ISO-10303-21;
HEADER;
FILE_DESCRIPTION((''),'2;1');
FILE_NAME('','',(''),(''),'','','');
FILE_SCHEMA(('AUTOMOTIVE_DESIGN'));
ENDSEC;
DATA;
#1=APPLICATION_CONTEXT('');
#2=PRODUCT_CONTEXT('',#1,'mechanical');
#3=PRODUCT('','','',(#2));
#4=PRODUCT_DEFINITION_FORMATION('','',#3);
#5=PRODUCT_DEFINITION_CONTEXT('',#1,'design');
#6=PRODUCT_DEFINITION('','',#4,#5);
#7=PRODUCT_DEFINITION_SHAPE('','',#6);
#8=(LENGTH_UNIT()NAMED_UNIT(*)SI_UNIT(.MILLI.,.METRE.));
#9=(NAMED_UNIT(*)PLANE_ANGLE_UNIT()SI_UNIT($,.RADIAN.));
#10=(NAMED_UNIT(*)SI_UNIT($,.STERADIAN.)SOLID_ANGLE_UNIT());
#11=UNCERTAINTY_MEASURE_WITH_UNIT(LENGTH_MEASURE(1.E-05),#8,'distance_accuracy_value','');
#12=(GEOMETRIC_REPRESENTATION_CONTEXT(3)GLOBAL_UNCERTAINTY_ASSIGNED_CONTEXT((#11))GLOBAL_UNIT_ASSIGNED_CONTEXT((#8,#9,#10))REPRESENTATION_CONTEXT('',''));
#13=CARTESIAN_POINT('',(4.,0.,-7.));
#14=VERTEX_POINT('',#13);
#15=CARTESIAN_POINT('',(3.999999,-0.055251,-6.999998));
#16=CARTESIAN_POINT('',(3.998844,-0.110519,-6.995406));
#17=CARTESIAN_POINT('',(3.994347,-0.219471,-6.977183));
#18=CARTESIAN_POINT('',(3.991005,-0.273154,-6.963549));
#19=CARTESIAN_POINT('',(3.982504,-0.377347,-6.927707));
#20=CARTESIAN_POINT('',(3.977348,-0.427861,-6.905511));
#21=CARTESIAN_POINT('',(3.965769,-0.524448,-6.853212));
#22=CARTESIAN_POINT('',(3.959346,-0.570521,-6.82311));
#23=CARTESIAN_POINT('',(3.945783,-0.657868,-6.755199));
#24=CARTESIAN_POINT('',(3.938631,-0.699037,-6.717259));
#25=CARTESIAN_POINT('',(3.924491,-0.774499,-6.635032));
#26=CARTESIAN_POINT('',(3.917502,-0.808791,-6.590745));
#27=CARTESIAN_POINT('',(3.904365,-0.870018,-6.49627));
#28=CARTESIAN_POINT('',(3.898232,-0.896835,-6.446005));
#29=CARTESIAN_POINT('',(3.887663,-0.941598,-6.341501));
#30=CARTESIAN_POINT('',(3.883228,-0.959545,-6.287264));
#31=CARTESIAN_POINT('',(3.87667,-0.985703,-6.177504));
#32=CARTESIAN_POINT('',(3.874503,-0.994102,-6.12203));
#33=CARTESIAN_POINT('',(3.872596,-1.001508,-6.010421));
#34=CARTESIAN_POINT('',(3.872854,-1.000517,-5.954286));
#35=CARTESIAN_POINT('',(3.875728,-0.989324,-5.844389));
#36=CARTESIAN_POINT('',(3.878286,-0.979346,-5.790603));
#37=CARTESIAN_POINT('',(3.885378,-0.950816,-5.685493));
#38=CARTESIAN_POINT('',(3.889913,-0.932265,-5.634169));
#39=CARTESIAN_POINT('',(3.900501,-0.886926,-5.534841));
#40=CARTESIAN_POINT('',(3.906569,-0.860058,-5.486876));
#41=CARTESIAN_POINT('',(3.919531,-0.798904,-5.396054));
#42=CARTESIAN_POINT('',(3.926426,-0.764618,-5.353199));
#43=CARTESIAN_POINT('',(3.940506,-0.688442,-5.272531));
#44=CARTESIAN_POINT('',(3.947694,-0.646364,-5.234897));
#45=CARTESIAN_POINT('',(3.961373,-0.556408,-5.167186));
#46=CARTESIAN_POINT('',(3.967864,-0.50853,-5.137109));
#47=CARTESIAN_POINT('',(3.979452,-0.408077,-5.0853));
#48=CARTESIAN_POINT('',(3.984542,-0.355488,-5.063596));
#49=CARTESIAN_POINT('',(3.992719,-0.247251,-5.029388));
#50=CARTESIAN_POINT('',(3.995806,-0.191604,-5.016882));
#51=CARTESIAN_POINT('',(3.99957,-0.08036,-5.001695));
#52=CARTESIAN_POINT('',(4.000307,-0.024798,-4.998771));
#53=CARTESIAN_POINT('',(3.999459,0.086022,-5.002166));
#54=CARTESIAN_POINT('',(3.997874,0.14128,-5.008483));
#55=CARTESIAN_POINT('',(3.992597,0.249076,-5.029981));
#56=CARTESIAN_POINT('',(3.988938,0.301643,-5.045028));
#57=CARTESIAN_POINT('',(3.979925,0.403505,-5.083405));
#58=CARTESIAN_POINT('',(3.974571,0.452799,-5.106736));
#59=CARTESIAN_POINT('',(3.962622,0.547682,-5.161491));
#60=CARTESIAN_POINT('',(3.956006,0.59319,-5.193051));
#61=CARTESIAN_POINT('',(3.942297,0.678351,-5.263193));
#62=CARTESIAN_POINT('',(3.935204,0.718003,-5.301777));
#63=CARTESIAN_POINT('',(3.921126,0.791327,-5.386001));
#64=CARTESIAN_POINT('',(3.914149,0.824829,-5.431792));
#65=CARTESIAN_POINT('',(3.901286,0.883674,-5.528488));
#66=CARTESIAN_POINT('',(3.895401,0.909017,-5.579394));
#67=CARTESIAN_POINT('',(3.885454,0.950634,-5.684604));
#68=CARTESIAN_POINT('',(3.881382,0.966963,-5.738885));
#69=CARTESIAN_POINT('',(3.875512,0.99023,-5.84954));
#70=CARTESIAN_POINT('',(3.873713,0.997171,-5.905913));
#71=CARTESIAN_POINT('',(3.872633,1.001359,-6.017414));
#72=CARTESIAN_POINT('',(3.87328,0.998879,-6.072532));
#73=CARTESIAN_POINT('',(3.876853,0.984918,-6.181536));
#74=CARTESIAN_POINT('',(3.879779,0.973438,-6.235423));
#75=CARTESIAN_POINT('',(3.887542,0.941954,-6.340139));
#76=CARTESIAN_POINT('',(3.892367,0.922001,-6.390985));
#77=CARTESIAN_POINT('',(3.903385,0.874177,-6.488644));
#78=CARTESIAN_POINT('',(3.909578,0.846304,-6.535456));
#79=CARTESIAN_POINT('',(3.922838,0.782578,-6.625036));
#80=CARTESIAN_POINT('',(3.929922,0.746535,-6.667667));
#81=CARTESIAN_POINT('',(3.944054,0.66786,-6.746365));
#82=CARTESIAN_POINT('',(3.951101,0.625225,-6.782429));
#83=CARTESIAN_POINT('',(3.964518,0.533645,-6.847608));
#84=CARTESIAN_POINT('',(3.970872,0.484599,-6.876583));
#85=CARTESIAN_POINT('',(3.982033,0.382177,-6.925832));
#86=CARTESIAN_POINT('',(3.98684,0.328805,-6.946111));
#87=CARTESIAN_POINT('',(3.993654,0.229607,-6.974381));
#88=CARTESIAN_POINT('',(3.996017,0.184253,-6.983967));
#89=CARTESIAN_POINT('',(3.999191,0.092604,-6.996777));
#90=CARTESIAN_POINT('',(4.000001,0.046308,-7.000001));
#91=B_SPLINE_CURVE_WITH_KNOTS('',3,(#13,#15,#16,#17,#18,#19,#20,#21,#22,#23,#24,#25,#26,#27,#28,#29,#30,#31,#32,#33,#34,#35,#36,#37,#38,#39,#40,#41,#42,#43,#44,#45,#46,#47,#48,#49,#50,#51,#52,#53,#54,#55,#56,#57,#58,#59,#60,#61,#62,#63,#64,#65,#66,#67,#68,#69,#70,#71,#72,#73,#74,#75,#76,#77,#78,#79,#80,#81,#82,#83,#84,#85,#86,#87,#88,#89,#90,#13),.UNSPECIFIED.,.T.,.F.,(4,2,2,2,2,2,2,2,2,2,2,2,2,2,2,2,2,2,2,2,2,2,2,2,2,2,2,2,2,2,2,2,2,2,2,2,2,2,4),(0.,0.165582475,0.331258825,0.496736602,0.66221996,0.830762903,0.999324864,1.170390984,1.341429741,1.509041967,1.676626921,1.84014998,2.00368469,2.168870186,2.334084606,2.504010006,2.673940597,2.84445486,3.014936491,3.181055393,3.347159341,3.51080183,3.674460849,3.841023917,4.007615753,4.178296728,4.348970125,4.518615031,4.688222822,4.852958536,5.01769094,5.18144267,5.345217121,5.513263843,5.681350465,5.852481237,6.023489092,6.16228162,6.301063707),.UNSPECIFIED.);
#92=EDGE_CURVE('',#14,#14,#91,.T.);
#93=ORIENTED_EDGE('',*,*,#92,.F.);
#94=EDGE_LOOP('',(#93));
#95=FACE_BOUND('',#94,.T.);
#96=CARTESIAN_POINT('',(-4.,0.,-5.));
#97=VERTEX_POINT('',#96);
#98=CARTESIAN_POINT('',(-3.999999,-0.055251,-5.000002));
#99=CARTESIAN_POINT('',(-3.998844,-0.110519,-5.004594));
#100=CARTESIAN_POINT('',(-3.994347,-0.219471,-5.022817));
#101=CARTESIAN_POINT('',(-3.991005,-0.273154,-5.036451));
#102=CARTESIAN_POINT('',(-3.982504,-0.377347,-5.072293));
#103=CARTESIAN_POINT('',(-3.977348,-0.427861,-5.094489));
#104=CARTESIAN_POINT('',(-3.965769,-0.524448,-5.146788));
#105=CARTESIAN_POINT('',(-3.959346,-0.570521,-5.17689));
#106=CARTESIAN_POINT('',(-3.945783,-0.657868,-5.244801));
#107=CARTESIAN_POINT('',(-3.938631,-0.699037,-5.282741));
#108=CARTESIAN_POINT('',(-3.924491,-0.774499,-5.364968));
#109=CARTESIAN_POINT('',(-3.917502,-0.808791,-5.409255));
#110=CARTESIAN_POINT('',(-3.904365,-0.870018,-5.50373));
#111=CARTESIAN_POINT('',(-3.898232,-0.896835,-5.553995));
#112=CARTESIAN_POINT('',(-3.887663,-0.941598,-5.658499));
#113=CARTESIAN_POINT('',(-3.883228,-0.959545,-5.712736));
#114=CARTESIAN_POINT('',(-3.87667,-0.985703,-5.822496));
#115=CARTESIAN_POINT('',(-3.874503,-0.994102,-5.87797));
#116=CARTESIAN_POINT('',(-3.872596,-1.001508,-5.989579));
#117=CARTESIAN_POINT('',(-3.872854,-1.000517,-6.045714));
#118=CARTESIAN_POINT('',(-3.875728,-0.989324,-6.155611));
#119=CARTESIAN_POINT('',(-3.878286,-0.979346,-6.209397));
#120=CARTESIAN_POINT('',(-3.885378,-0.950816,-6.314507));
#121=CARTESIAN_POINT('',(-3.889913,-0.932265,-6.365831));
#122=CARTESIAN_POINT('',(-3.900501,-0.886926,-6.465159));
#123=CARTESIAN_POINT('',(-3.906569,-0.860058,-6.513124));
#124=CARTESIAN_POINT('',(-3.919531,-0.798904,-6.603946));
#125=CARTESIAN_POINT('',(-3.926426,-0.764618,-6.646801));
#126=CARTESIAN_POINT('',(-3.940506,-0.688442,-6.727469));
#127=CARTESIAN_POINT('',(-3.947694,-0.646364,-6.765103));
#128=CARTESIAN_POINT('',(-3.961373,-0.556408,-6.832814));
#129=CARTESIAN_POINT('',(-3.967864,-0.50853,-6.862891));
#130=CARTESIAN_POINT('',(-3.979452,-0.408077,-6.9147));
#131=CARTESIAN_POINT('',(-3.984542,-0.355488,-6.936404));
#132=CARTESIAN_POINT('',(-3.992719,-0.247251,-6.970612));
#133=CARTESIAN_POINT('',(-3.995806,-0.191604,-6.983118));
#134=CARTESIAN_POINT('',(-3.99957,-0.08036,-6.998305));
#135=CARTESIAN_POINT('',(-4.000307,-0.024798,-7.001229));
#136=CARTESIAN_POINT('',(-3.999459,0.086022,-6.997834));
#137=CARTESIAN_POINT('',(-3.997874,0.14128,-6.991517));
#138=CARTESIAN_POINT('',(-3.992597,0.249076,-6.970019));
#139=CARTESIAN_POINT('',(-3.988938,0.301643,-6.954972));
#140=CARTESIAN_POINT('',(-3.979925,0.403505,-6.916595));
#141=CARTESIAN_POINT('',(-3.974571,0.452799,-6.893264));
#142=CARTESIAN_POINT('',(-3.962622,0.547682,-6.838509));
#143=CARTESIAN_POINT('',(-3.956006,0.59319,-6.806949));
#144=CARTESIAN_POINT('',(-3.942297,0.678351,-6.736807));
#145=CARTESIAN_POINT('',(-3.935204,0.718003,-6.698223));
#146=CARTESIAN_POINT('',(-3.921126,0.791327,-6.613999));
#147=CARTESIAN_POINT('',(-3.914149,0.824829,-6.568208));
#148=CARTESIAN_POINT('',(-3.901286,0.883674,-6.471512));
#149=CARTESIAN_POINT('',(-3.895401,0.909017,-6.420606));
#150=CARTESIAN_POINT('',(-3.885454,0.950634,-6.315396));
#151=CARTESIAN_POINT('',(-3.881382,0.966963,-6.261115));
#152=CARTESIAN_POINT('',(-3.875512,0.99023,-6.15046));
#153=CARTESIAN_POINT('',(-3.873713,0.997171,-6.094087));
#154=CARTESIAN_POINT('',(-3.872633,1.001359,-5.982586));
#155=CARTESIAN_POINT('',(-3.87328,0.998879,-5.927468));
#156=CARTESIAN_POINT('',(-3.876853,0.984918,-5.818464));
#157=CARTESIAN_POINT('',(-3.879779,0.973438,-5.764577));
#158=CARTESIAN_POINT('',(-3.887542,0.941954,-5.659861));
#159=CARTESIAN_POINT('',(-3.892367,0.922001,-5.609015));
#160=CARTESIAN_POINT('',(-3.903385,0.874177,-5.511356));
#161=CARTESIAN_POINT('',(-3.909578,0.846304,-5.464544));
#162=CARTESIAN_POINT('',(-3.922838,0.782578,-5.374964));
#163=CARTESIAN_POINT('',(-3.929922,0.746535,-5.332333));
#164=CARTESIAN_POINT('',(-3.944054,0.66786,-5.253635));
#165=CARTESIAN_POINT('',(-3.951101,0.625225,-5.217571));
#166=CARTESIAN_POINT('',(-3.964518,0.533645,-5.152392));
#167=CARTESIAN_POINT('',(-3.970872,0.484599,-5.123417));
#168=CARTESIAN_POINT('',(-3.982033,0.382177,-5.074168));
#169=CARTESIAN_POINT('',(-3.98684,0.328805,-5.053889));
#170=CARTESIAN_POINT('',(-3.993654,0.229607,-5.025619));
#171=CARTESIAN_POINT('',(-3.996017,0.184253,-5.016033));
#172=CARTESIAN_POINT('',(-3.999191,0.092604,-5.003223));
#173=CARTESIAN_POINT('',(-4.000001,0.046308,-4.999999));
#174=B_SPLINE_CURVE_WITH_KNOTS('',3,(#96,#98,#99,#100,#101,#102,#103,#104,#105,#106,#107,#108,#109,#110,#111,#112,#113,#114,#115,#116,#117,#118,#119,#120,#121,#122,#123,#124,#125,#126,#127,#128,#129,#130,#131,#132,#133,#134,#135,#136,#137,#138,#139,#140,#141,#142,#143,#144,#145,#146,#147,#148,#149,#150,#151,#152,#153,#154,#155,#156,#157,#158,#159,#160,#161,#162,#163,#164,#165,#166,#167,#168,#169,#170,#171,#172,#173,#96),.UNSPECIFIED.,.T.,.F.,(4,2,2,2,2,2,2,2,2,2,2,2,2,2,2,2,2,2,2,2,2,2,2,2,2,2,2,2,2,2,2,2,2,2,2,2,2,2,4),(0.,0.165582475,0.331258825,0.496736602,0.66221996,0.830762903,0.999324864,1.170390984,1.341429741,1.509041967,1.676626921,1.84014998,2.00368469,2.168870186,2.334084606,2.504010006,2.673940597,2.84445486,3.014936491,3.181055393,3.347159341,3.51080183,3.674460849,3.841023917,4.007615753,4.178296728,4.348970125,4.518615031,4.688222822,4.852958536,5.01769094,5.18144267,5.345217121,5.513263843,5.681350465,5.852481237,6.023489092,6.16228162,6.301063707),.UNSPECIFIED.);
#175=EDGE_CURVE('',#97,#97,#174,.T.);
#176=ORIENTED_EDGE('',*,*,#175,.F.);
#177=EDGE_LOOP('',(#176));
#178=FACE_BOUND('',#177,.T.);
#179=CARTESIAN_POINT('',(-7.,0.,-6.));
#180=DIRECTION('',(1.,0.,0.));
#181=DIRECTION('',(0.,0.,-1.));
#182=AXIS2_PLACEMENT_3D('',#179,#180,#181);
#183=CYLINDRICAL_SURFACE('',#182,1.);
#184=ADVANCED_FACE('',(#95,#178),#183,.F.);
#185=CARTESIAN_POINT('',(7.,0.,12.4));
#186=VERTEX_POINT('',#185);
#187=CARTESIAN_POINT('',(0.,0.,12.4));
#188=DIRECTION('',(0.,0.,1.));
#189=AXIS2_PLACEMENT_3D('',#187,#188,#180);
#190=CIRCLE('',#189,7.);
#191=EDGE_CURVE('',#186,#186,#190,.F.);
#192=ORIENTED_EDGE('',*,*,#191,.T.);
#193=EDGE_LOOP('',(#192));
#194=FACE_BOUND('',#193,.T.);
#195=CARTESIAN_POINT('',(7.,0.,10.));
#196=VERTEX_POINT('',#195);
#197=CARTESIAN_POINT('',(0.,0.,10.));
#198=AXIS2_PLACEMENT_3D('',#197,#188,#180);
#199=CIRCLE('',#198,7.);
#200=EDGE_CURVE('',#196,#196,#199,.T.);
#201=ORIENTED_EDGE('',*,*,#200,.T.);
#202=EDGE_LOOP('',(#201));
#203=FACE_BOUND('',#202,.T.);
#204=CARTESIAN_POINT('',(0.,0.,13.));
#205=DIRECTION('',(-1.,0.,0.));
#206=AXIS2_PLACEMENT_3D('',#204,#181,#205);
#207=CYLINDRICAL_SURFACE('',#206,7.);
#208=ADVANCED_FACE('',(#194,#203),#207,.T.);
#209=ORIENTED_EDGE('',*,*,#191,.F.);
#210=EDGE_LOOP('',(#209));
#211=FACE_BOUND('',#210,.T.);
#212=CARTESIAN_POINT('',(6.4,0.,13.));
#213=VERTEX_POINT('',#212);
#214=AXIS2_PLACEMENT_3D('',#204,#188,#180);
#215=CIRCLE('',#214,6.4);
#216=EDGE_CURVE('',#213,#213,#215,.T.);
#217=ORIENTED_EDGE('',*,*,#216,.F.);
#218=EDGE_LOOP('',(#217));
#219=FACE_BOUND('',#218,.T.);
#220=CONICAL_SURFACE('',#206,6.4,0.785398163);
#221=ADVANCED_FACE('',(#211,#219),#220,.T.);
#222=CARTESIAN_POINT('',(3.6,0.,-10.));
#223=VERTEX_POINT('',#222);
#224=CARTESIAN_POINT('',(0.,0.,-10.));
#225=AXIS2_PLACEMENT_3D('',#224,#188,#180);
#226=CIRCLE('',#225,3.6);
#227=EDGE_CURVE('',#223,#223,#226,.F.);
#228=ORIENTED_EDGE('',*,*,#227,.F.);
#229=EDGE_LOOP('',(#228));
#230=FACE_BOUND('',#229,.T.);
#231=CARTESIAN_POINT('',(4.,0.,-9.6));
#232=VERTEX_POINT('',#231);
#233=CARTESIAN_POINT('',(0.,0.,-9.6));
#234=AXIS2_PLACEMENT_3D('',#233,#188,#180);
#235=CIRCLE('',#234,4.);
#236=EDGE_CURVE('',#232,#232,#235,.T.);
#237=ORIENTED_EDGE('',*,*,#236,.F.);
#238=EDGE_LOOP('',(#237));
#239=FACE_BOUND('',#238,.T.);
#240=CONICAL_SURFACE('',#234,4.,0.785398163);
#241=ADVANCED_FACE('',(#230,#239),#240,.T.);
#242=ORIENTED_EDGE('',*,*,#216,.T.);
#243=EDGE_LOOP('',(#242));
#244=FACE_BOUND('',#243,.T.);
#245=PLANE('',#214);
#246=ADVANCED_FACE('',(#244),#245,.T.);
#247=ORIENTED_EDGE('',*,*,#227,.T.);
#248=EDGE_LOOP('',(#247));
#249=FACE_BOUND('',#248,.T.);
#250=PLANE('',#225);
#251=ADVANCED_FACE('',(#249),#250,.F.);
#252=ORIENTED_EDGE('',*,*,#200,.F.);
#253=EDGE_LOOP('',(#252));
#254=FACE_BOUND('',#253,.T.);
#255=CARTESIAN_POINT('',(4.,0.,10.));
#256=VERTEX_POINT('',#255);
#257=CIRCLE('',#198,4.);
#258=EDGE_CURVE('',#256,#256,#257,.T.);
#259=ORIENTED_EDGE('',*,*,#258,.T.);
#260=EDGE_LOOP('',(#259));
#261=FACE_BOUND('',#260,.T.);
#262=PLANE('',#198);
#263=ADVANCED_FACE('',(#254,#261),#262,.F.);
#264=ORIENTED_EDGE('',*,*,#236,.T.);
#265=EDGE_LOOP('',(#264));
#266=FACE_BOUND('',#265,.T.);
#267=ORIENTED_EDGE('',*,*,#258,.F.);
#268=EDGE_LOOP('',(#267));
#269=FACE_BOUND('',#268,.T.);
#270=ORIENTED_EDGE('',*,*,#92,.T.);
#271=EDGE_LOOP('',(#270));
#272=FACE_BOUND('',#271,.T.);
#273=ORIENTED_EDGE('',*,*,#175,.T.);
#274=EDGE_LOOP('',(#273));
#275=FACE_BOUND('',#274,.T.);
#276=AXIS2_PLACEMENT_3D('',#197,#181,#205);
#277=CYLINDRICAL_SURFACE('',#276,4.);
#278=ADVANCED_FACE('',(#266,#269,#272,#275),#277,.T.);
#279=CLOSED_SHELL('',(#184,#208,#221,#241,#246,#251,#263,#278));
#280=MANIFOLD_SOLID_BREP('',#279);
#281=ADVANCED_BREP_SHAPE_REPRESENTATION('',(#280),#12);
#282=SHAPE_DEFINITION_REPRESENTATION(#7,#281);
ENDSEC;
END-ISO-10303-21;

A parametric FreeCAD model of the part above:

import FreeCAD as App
import Part
import Sketcher
from FreeCAD import Vector
Q = App.Units.Quantity


def edges_at(feature, points):
    """Names of the edges that pass closest to the given points."""
    edges = feature.Shape.Edges
    near = lambda p: min(range(len(edges)), key=lambda i: edges[i].distToShape(Part.Vertex(*p))[0])
    return sorted({f"Edge{near(p) + 1}" for p in points})

doc = App.newDocument("Part")
body = doc.addObject("PartDesign::Body", "Body")

# Sketch on XY plane
sketch1 = body.newObject("Sketcher::SketchObject", "Sketch")
sketch1.AttachmentSupport = (doc.getObject("XY_Plane"), [""])
sketch1.MapMode = "FlatFace"
sketch1.addGeometry(Part.Circle(Vector(0, 0, 0), Vector(0, 0, 1), 4), False)
sketch1.addConstraint([
    Sketcher.Constraint("Coincident", 0, 3, -1, 1),
    Sketcher.Constraint("Diameter", 0, Q("8 mm")),
])
pad1 = body.newObject("PartDesign::Pad", "Pad")
pad1.Profile = sketch1
pad1.Length = 20
pad1.Midplane = True

# Sketch on XY plane
sketch2 = body.newObject("Sketcher::SketchObject", "Sketch001")
sketch2.AttachmentSupport = (doc.getObject("XY_Plane"), [""])
sketch2.MapMode = "FlatFace"
sketch2.AttachmentOffset = App.Placement(Vector(0, 0, 10), App.Rotation())
sketch2.addGeometry(Part.Circle(Vector(0, 0, 0), Vector(0, 0, 1), 7), False)
sketch2.addConstraint([
    Sketcher.Constraint("Coincident", 0, 3, -1, 1),
    Sketcher.Constraint("Diameter", 0, Q("14 mm")),
])
pad2 = body.newObject("PartDesign::Pad", "Pad001")
pad2.Profile = sketch2
pad2.Length = 3
doc.recompute()

chamfer = body.newObject("PartDesign::Chamfer", "Chamfer")
chamfer.Base = (pad2, edges_at(pad2, [(-7, 0, 13)]))
chamfer.Size = 0.6

# Sketch on YZ plane
sketch3 = body.newObject("Sketcher::SketchObject", "Sketch002")
sketch3.AttachmentSupport = (doc.getObject("YZ_Plane"), [""])
sketch3.MapMode = "FlatFace"
sketch3.addGeometry(Part.Circle(Vector(0, -6, 0), Vector(0, 0, 1), 1), False)
sketch3.addConstraint([
    Sketcher.Constraint("PointOnObject", 0, 3, -2),
    Sketcher.Constraint("Diameter", 0, Q("2 mm")),
    Sketcher.Constraint("DistanceY", 0, 3, -1, 1, Q("6 mm")),
])
pocket1 = body.newObject("PartDesign::Pocket", "Pocket")
pocket1.Profile = sketch3
pocket1.Type = "ThroughAll"
pocket1.Midplane = True
doc.recompute()

chamfer2 = body.newObject("PartDesign::Chamfer", "Chamfer001")
chamfer2.Base = (pocket1, edges_at(pocket1, [(-4, 0, -10)]))
chamfer2.Size = 0.4

doc.recompute()
